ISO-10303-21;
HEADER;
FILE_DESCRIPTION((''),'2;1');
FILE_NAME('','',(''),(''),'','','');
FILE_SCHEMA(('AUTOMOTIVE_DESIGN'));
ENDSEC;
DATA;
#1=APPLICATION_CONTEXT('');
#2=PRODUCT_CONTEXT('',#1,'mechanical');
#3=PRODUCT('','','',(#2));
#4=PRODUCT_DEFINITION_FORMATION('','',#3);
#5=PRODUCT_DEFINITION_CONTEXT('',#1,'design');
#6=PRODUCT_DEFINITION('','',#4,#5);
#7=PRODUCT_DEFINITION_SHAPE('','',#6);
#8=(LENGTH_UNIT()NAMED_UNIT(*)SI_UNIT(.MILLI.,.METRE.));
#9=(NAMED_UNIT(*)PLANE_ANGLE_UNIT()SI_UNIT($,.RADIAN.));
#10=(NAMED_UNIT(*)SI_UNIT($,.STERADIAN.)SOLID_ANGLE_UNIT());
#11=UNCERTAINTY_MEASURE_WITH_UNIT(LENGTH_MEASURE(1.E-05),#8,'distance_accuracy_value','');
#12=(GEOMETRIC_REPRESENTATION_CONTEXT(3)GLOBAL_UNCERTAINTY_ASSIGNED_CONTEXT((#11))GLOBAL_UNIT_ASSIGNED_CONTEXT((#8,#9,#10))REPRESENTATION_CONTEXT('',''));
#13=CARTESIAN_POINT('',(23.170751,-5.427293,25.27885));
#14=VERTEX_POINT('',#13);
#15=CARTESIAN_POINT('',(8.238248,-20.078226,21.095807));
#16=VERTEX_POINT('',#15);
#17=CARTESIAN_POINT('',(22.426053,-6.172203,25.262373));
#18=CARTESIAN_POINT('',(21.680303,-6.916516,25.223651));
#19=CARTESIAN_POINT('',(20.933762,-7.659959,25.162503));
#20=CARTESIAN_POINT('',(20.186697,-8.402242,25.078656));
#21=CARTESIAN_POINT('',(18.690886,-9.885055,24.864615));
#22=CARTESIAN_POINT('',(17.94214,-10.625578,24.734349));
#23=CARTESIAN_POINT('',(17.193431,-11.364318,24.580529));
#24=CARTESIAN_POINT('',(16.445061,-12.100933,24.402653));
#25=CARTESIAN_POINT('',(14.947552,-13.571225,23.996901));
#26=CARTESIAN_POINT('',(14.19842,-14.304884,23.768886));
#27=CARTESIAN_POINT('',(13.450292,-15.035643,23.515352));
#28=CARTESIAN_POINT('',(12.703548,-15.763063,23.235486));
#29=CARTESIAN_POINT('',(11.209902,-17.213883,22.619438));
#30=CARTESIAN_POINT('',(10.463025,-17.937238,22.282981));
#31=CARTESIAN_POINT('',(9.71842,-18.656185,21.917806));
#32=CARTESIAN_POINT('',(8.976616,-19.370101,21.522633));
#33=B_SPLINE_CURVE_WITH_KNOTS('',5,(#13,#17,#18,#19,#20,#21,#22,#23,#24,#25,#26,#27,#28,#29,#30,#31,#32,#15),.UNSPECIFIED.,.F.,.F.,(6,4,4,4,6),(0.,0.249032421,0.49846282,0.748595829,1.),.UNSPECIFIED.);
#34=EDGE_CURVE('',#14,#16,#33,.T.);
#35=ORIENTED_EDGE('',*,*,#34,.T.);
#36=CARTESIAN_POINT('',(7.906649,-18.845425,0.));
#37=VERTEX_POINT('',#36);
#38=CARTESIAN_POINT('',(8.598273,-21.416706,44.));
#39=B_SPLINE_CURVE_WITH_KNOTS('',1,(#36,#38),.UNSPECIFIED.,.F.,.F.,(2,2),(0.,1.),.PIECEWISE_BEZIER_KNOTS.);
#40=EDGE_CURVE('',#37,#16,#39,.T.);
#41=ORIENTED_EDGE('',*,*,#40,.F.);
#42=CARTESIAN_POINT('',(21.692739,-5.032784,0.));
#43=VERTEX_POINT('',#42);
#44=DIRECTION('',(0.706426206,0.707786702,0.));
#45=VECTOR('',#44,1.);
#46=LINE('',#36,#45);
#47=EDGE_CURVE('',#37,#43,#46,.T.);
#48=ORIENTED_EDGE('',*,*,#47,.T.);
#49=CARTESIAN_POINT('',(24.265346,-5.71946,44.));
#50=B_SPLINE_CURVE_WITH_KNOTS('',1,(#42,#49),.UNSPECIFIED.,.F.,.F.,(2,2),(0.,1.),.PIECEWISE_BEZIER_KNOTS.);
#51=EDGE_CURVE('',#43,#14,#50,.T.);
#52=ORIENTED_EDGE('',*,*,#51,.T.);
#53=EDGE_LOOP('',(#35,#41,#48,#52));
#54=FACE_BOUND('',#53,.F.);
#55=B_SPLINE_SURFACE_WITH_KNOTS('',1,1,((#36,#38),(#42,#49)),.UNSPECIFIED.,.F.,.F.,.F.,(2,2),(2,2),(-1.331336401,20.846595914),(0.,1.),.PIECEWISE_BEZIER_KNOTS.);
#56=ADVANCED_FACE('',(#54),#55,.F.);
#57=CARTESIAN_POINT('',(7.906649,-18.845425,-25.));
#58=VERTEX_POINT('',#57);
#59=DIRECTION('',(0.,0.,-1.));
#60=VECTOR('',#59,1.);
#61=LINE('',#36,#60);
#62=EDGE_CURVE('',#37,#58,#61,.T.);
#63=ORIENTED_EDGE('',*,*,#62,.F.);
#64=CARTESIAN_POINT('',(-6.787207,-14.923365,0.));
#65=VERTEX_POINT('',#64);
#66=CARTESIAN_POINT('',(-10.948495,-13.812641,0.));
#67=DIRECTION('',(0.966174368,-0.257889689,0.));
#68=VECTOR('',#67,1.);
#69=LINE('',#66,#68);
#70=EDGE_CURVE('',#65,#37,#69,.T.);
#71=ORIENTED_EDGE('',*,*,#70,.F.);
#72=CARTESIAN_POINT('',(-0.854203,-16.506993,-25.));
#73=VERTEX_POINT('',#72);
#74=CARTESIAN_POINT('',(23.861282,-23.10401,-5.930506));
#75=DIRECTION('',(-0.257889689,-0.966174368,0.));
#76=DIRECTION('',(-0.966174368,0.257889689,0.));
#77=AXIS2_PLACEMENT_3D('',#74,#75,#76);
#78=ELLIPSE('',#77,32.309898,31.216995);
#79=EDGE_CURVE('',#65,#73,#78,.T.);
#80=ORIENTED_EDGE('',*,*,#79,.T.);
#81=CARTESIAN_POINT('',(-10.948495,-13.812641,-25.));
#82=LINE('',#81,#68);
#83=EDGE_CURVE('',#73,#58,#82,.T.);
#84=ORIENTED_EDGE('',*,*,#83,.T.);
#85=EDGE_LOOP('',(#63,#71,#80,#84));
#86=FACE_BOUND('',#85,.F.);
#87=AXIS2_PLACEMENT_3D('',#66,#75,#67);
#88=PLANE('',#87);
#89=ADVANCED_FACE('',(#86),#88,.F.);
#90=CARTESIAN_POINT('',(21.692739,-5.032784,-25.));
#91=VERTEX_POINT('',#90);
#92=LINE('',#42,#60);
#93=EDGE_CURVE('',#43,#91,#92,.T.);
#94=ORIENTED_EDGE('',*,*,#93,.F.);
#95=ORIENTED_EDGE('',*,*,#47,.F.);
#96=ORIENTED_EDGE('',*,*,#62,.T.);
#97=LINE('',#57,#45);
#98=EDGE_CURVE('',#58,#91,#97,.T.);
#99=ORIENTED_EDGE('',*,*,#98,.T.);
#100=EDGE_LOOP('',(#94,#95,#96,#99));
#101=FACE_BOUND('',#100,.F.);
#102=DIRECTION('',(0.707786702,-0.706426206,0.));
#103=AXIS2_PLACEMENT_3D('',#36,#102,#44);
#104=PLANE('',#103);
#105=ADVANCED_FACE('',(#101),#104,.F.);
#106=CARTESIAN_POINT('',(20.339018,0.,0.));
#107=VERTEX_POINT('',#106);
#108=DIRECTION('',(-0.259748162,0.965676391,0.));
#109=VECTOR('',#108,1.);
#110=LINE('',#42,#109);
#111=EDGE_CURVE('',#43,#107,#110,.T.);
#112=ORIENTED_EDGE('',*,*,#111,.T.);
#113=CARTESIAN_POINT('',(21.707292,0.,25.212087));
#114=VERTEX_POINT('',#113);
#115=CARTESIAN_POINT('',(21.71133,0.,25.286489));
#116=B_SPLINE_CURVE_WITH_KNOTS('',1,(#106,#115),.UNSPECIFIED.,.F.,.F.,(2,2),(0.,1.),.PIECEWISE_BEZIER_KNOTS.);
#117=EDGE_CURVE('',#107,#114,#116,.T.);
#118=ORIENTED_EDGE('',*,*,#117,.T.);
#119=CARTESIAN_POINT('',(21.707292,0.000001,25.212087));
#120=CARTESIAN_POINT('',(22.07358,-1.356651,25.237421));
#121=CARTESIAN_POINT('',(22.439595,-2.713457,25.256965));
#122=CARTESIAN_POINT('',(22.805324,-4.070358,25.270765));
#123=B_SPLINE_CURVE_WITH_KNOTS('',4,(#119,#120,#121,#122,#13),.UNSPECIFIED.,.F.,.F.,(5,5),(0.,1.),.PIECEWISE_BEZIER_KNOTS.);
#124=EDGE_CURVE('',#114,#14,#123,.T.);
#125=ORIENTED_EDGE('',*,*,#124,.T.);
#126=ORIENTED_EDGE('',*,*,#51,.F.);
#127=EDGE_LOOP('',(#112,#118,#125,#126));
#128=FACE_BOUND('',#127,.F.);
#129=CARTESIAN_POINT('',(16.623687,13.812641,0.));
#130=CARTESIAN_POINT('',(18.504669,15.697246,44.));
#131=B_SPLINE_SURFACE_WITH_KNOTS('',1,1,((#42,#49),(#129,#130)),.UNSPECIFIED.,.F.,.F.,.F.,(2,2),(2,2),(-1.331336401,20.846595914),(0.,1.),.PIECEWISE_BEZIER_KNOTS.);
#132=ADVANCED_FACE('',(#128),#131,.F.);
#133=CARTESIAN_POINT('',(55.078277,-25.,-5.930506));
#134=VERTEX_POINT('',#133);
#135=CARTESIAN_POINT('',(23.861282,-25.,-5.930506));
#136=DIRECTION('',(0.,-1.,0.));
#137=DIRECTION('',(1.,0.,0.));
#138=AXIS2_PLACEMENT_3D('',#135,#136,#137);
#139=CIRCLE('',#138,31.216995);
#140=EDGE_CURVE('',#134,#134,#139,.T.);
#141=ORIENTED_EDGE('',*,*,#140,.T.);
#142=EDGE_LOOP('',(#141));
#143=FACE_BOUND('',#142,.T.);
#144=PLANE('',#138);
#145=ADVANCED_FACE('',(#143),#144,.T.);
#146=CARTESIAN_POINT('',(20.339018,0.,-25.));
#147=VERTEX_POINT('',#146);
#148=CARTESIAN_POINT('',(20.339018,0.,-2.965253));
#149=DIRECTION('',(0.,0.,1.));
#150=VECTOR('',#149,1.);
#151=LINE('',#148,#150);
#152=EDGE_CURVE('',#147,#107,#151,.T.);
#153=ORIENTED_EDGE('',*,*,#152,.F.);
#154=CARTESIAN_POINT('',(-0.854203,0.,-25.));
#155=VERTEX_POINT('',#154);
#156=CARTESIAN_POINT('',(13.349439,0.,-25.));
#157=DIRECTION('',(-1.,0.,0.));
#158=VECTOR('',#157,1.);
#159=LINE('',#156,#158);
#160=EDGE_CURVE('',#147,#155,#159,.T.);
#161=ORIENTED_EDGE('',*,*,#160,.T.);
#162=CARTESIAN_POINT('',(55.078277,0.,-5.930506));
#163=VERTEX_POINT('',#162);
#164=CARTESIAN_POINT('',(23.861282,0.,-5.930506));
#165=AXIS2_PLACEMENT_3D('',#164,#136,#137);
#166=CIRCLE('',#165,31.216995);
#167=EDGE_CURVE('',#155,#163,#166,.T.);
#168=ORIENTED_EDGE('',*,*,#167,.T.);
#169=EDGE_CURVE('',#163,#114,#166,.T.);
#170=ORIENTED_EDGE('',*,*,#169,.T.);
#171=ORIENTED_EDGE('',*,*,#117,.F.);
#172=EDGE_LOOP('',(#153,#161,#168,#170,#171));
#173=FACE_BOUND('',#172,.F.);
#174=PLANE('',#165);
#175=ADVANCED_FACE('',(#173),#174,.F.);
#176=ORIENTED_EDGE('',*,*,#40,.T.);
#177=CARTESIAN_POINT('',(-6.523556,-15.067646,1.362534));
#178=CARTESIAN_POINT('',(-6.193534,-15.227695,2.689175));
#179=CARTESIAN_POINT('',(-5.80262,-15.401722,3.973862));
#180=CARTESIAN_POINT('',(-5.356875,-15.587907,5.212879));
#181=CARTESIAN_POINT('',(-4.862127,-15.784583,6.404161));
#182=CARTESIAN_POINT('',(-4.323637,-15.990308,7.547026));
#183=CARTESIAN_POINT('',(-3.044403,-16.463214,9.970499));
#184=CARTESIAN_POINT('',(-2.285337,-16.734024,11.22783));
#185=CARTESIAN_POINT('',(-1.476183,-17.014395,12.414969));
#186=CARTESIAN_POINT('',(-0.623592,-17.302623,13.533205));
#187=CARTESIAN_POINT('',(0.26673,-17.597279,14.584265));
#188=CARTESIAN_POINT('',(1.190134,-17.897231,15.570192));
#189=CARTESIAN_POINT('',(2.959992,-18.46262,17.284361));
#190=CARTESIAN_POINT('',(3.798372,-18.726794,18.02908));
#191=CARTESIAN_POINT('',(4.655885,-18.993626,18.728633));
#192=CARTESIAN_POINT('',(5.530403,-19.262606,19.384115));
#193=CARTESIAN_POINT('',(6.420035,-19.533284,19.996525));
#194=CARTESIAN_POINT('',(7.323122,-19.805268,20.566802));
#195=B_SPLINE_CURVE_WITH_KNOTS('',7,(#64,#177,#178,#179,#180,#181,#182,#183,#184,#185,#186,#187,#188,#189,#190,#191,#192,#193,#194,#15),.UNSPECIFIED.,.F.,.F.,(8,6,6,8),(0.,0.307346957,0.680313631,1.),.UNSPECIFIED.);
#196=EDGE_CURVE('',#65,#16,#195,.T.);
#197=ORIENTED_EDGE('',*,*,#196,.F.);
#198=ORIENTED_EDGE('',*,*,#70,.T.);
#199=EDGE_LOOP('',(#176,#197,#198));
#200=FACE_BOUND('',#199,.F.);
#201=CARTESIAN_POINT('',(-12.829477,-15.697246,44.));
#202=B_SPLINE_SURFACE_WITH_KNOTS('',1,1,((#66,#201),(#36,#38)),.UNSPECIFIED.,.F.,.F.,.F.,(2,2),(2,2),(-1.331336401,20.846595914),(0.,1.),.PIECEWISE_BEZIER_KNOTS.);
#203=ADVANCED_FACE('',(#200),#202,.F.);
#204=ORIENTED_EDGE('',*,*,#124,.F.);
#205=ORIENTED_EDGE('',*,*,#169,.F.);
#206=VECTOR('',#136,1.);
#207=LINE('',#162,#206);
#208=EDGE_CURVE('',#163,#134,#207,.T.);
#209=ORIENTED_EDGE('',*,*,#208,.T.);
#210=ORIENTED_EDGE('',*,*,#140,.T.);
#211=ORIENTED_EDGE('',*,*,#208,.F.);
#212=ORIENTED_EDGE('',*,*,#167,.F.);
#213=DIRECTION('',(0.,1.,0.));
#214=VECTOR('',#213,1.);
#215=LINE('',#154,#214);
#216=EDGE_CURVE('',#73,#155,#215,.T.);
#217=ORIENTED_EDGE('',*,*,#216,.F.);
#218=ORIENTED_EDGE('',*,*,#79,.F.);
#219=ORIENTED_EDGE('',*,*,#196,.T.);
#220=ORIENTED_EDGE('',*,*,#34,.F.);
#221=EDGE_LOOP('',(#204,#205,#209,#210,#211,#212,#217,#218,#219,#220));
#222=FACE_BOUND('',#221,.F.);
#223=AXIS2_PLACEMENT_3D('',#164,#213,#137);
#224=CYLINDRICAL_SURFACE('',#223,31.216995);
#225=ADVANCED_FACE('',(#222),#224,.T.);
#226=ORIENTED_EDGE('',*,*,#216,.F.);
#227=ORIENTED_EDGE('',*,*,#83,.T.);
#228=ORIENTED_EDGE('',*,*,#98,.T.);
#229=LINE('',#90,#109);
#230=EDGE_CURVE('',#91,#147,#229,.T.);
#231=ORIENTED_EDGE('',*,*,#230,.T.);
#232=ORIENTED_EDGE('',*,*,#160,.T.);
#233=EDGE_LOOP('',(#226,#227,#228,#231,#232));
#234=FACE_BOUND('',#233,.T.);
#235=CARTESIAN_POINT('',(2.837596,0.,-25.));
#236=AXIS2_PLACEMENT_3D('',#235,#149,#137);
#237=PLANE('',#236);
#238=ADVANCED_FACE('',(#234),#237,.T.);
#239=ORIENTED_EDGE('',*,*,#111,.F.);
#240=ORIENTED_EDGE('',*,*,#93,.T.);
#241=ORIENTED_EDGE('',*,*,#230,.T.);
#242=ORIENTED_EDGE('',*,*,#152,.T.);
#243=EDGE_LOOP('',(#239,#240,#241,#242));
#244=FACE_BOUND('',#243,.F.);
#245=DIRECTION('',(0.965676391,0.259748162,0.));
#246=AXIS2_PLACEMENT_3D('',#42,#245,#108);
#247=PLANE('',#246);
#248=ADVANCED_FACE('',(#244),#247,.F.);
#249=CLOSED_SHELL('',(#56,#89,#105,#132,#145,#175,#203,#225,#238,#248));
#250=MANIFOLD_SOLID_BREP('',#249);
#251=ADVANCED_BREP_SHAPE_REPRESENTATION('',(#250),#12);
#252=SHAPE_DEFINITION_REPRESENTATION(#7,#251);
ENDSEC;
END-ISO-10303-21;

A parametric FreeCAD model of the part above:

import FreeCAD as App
import Part
import Sketcher

V = App.Vector


def add_polygon(sketch, points):
    """Adds a closed chain of lines whose ends are joined by coincident constraints."""
    first, n = sketch.GeometryCount, len(points)
    for a, b in zip(points, points[1:] + points[:1]):
        sketch.addGeometry(Part.LineSegment(App.Vector(*a, 0), App.Vector(*b, 0)), False)
    for i in range(n):
        sketch.addConstraint(Sketcher.Constraint("Coincident", first + i, 2, first + (i + 1) % n, 1))

doc = App.newDocument("Part")
body = doc.addObject("PartDesign::Body", "Body")

# Sketch on XZ plane
sketch1 = doc.addObject("Sketcher::SketchObject", "Sketch")
body.addObject(sketch1)
sketch1.AttachmentSupport = (doc.XZ_Plane, [""])
sketch1.MapMode = "FlatFace"
sketch1.addGeometry(Part.Circle(V(24, -6, 0), V(0, 0, 1), 31), False)
sketch1.addConstraint(Sketcher.Constraint("Diameter", 0, 62.43399))
sketch1.addConstraint(Sketcher.Constraint("DistanceX", -1, 1, 0, 3, 23.861282))
sketch1.addConstraint(Sketcher.Constraint("DistanceY", 0, 3, -1, 1, 5.930506))
pad1 = doc.addObject("PartDesign::Pad", "Pad")
body.addObject(pad1)
pad1.Profile = sketch1
pad1.Length = 25
body2 = doc.addObject("PartDesign::Body", "Body001")

# Sketch on XY plane
sketch2 = doc.addObject("Sketcher::SketchObject", "Sketch001")
body2.addObject(sketch2)
sketch2.AttachmentSupport = (doc.getObject("XY_Plane001"), [""])
sketch2.MapMode = "FlatFace"
add_polygon(sketch2, [(22, -5), (17, 14), (-2, 19), (-16, 5), (-11, -14), (8, -19)])  # lines 0-5
sketch2.addConstraint(Sketcher.Constraint("Parallel", 0, 3))
sketch2.addConstraint(Sketcher.Constraint("Parallel", 1, 4))
sketch2.addConstraint(Sketcher.Constraint("Parallel", 2, 5))
sketch2.addConstraint(Sketcher.Constraint("Equal", 0, 1))
sketch2.addConstraint(Sketcher.Constraint("Equal", 1, 2))
sketch2.addConstraint(Sketcher.Constraint("Equal", 2, 3))
sketch2.addConstraint(Sketcher.Constraint("Distance", 0, 19.51526))
sketch2.addConstraint(Sketcher.Constraint("DistanceY", -1, 1, 0, 2, 13.812641))
sketch2.addConstraint(Sketcher.Constraint("DistanceY", 3, 2, -1, 1, 13.812641))
sketch2.addConstraint(Sketcher.Constraint("DistanceX", -1, 1, 4, 2, 7.906649))
sketch2.addConstraint(Sketcher.Constraint("DistanceX", -1, 1, 5, 2, 21.692739))
sketch2.addConstraint(Sketcher.Constraint("DistanceX", 3, 2, 0, 2, 27.572181))
pad2 = doc.addObject("PartDesign::Pad", "Pad001")
body2.addObject(pad2)
pad2.Profile = sketch2
pad2.Length = 44
pad2.TaperAngle = 3
pad3 = doc.addObject("PartDesign::Pad", "Pad002")
body2.addObject(pad3)
pad3.Profile = sketch2
pad3.Length = 25
pad3.Reversed = True
doc.recompute()

boolean = doc.addObject("PartDesign::Boolean", "Boolean")
body.addObject(boolean)
boolean.Type = "Cut"
boolean.addObjects([body2])

doc.recompute()
